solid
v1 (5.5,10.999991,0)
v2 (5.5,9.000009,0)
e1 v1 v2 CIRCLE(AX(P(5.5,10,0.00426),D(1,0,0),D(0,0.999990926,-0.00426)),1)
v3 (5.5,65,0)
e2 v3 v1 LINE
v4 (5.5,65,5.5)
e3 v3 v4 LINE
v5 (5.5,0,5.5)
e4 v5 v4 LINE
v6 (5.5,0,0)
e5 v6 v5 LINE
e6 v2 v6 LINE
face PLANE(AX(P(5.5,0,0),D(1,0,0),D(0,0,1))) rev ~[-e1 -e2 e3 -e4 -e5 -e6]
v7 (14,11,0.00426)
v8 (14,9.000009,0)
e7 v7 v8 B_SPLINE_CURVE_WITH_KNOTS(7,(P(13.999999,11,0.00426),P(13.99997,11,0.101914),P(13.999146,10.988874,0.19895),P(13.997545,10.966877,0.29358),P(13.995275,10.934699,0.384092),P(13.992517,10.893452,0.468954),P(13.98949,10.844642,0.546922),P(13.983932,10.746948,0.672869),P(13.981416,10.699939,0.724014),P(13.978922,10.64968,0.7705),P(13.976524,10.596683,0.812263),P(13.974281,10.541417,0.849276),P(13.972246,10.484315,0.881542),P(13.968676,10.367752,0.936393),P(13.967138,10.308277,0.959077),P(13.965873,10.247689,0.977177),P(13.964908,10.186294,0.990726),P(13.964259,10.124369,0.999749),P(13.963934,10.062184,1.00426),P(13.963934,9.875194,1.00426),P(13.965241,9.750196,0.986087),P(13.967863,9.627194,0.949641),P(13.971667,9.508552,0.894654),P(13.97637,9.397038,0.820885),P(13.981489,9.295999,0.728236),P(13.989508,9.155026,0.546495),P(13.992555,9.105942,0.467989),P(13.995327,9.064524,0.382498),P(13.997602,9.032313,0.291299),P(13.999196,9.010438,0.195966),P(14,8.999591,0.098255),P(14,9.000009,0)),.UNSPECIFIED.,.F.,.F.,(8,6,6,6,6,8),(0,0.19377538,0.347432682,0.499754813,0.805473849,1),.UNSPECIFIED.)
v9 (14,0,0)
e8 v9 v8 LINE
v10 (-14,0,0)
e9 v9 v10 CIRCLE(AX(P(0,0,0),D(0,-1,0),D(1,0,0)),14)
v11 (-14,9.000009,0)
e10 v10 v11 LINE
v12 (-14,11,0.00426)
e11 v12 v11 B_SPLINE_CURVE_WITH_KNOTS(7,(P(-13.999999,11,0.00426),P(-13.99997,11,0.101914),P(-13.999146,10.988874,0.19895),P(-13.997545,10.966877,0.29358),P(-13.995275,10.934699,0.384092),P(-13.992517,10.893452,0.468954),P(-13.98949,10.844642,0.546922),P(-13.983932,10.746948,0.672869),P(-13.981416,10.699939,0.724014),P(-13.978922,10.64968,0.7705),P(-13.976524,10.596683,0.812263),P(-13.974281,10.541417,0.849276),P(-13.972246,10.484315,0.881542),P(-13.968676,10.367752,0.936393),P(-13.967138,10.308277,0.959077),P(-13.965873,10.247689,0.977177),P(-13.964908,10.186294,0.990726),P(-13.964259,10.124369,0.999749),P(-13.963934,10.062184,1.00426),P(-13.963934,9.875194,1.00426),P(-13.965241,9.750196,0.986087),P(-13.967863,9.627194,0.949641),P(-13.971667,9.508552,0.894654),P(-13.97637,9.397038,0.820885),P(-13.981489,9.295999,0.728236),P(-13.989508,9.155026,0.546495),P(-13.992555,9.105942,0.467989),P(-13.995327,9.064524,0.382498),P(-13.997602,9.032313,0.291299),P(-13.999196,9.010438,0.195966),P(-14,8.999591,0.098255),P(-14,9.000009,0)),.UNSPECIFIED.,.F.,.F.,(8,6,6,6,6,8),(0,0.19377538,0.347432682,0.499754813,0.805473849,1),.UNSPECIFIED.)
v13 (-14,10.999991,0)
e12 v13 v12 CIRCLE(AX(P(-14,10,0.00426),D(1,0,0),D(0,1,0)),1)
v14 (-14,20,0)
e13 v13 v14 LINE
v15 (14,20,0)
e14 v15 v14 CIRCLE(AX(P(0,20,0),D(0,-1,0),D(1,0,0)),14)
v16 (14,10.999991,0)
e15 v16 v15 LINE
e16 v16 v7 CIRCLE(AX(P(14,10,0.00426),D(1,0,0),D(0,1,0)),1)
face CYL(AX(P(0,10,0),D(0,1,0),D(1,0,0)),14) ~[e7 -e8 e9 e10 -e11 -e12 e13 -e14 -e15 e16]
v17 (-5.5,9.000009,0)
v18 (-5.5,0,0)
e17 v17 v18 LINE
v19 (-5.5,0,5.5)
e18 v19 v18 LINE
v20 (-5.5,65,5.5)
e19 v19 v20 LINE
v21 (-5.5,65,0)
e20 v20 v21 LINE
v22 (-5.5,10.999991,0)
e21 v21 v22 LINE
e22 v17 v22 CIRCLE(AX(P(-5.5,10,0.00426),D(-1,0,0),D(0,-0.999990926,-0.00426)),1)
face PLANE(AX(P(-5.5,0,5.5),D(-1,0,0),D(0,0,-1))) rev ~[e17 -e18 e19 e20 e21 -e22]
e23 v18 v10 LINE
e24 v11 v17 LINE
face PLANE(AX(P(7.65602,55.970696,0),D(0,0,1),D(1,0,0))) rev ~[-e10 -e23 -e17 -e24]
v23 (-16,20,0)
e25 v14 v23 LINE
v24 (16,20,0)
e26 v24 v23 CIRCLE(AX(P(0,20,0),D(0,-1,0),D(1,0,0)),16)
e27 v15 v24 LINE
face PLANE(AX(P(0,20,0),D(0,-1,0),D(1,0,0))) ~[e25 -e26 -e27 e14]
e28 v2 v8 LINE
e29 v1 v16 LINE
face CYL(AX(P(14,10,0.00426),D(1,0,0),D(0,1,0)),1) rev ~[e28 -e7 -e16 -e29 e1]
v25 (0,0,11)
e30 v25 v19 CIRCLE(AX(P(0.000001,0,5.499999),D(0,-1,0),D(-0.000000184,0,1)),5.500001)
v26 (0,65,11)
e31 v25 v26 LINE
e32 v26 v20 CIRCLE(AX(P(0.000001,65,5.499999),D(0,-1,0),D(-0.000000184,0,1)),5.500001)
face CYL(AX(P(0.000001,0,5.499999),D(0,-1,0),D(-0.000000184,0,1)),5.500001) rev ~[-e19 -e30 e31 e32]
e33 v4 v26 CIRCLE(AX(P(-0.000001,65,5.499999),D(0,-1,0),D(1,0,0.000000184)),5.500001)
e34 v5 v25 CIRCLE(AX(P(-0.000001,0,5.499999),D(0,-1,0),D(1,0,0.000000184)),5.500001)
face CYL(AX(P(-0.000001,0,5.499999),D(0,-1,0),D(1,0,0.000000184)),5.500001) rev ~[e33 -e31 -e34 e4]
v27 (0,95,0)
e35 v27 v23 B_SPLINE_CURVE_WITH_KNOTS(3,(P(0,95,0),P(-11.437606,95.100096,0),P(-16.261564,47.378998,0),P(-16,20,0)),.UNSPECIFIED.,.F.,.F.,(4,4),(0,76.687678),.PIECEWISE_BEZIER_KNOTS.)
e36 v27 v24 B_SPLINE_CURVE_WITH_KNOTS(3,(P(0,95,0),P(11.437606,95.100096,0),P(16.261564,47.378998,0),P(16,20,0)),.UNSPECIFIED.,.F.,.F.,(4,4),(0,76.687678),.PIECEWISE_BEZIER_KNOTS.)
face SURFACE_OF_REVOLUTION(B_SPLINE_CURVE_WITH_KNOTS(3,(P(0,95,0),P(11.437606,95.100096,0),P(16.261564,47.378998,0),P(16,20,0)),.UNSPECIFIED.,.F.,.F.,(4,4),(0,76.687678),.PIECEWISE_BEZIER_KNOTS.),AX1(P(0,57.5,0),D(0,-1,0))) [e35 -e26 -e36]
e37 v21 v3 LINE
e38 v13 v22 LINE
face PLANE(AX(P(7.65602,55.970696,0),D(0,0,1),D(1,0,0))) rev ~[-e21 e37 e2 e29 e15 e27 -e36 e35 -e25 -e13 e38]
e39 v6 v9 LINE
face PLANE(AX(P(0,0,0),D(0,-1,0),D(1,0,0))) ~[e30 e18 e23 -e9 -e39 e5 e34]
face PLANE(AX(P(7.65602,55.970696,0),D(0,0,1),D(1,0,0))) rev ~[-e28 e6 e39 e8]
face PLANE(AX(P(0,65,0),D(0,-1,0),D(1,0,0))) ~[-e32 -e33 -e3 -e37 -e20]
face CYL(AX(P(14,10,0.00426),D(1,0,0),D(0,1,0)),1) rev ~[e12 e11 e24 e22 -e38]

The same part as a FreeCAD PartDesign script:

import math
import FreeCAD as App
import Part
import Sketcher
from FreeCAD import Vector

doc = App.newDocument("Part")
body = doc.addObject("PartDesign::Body", "Body")

sketch1 = body.newObject("Sketcher::SketchObject", "Sketch")
sketch1.AttachmentSupport = (doc.getObject("XY_Plane"), [""])
sketch1.MapMode = "FlatFace"
sketch1.addGeometry([
    Part.LineSegment(Vector(0, 95, 0), Vector(0, 65, 0)),
    Part.LineSegment(Vector(0, 65, 0), Vector(5.5, 65, 0)),
    Part.LineSegment(Vector(5.5, 65, 0), Vector(5.5, 0, 0)),
    Part.LineSegment(Vector(5.5, 0, 0), Vector(14, 0, 0)),
    Part.LineSegment(Vector(14, 0, 0), Vector(14, 20, 0)),
    Part.LineSegment(Vector(14, 20, 0), Vector(16, 20, 0)),
    Part.BSplineCurve([Vector(0, 95, 0), Vector(11.437606, 95.100096, 0), Vector(16.261564, 47.378998, 0), Vector(16, 20, 0)], [4, 4], [0, 76.687678], False, 3, [1, 1, 1, 1], False),
], False)
sketch1.addConstraint([
    Sketcher.Constraint("Block", 6),
    Sketcher.Constraint("Coincident", 0, 2, 1, 1),
    Sketcher.Constraint("Coincident", 1, 2, 2, 1),
    Sketcher.Constraint("Coincident", 2, 2, 3, 1),
    Sketcher.Constraint("Coincident", 3, 2, 4, 1),
    Sketcher.Constraint("Coincident", 4, 2, 5, 1),
    Sketcher.Constraint("Coincident", 5, 2, 6, 2),
    Sketcher.Constraint("Coincident", 6, 1, 0, 1),
    Sketcher.Constraint("Vertical", 0),
    Sketcher.Constraint("Horizontal", 1),
    Sketcher.Constraint("Vertical", 2),
    Sketcher.Constraint("Horizontal", 3),
    Sketcher.Constraint("Vertical", 4),
    Sketcher.Constraint("Horizontal", 5),
    Sketcher.Constraint("PointOnObject", 2, 2, -1),
    Sketcher.Constraint("DistanceX", 5, 1, 5, 2, 2.0),
    Sketcher.Constraint("DistanceY", 0, 2, 0, 1, 30.0),
    Sketcher.Constraint("DistanceX", 1, 1, 1, 2, 5.5),
])
revolution = body.newObject("PartDesign::Revolution", "Revolution")
revolution.Profile = sketch1
revolution.ReferenceAxis = (sketch1, ["V_Axis"])
revolution.Angle = 180
revolution.Reversed = True

sketch2 = body.newObject("Sketcher::SketchObject", "Sketch001")
sketch2.AttachmentSupport = (doc.getObject("XZ_Plane"), [""])
sketch2.MapMode = "FlatFace"
sketch2.addGeometry([
    Part.LineSegment(Vector(6, 0, 0), Vector(6, 6, 0)),
    Part.ArcOfCircle(Part.Circle(Vector(0, 5, 0), Vector(0, 0, 1), 6), math.radians(0), math.radians(90)),
    Part.ArcOfCircle(Part.Circle(Vector(0, 5, 0), Vector(0, 0, 1), 6), math.radians(90), math.radians(180)),
    Part.LineSegment(Vector(-6, 6, 0), Vector(-6, 0, 0)),
    Part.LineSegment(Vector(-6, 0, 0), Vector(6, 0, 0)),
], False)
sketch2.addConstraint([
    Sketcher.Constraint("Tangent", 0, 2, 1, 1),
    Sketcher.Constraint("Tangent", 1, 2, 2, 1),
    Sketcher.Constraint("Tangent", 2, 2, 3, 1),
    Sketcher.Constraint("Coincident", 3, 2, 4, 1),
    Sketcher.Constraint("Coincident", 4, 2, 0, 1),
    Sketcher.Constraint("Vertical", 0),
    Sketcher.Constraint("Vertical", 3),
    Sketcher.Constraint("Horizontal", 4),
    Sketcher.Constraint("Equal", 1, 2),
    Sketcher.Constraint("Symmetric", 3, 2, 4, 2, -1, 1),
    Sketcher.Constraint("PointOnObject", 1, 2, -2),
    Sketcher.Constraint("Radius", 1, 5.500001),
    Sketcher.Constraint("DistanceY", 0, 1, 0, 2, 5.5),
])
pocket1 = body.newObject("PartDesign::Pocket", "Pocket")
pocket1.Profile = sketch2
pocket1.Length = 65

sketch3 = body.newObject("Sketcher::SketchObject", "Sketch002")
sketch3.AttachmentSupport = (doc.getObject("YZ_Plane"), [""])
sketch3.MapMode = "FlatFace"
sketch3.AttachmentOffset = App.Placement(Vector(0, 0, 14), App.Rotation())
sketch3.addGeometry(Part.Circle(Vector(10, 0, 0), Vector(0, 0, 1), 1), False)
sketch3.addConstraint([
    Sketcher.Constraint("Diameter", 0, 2.0),
    Sketcher.Constraint("DistanceX", -1, 1, 0, 3, 10.0),
    Sketcher.Constraint("DistanceY", -1, 1, 0, 3, 0.00426),
])
pocket2 = body.newObject("PartDesign::Pocket", "Pocket001")
pocket2.Profile = sketch3
pocket2.Length = 28

doc.recompute()
